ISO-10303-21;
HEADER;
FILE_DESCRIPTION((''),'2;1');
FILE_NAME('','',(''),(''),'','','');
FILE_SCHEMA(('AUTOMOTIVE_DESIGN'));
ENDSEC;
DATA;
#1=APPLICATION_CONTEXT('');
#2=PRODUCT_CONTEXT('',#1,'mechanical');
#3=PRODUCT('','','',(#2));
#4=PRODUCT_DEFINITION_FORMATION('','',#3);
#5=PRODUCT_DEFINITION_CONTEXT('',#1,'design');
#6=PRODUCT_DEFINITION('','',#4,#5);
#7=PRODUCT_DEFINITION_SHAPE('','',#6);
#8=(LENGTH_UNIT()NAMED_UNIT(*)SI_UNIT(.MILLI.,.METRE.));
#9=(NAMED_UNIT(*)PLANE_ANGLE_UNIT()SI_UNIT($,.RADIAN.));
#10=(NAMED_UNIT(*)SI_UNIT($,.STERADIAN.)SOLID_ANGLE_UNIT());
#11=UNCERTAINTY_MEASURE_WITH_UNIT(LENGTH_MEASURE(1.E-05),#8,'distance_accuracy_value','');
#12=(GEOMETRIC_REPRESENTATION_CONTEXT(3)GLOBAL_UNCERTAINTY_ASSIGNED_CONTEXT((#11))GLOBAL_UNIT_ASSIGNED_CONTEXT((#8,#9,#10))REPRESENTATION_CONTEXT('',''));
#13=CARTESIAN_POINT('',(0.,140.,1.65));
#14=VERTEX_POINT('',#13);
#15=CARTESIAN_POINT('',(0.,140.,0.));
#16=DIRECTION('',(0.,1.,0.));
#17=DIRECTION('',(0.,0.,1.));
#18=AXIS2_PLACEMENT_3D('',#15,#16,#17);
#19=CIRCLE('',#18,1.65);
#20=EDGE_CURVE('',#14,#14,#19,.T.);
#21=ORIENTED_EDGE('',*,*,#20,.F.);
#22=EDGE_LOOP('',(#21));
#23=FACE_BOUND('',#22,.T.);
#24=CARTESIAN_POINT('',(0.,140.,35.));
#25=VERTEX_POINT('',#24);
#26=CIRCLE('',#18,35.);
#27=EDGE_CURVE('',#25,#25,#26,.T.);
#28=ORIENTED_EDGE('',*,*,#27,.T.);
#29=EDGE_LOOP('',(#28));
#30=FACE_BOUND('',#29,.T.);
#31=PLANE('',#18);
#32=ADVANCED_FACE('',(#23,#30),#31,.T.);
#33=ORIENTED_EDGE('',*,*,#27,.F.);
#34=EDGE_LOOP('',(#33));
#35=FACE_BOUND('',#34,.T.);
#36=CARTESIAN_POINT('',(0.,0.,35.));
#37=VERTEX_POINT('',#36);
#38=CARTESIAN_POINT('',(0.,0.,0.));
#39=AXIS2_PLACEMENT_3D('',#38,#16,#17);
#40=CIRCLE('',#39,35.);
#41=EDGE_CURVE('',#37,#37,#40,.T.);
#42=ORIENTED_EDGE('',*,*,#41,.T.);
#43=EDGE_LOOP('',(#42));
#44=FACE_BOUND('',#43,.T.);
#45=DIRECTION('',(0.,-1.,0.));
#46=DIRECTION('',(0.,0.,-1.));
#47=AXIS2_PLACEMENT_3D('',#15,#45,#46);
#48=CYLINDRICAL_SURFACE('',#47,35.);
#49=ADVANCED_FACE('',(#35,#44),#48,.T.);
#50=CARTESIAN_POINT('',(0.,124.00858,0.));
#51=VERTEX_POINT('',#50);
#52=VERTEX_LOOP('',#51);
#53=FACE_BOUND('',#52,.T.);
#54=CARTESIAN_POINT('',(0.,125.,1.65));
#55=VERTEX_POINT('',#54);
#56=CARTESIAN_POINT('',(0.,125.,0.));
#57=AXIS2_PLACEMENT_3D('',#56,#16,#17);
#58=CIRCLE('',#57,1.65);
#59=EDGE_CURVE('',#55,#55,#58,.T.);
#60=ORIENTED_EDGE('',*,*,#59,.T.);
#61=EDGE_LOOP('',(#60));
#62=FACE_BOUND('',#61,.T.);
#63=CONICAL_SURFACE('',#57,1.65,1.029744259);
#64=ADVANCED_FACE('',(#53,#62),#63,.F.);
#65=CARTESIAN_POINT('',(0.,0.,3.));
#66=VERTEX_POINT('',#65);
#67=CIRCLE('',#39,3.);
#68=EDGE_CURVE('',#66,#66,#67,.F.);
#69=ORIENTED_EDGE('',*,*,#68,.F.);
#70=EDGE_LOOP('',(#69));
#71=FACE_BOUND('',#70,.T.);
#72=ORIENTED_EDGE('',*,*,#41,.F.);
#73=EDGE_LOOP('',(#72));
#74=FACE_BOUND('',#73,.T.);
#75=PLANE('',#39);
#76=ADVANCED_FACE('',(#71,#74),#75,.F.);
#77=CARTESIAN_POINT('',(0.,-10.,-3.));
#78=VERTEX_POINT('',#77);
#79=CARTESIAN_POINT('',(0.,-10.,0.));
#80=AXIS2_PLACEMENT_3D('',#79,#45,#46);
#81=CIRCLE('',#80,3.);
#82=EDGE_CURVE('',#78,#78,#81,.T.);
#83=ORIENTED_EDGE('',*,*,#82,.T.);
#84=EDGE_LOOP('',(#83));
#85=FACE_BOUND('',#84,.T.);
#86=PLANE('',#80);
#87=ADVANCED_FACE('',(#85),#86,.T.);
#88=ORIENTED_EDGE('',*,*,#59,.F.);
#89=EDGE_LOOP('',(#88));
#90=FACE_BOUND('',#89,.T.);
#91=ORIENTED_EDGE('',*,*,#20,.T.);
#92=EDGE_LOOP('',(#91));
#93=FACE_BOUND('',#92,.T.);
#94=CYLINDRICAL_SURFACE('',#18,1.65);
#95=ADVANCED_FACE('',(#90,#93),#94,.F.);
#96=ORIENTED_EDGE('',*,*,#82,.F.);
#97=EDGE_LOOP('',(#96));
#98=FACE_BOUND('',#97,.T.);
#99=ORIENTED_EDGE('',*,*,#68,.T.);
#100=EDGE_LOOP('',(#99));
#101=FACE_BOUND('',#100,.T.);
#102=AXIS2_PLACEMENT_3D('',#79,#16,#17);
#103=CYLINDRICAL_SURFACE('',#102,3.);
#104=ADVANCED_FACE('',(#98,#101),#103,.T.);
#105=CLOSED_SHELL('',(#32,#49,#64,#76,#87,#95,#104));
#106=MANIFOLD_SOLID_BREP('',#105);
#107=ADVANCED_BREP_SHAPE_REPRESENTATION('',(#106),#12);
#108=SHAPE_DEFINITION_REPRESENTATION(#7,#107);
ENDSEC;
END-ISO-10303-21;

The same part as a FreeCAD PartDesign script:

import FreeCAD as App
import Part
import Sketcher

V = App.Vector
Q = App.Units.Quantity

doc = App.newDocument("Part")
params = doc.addObject("Spreadsheet::Sheet", "Params")
for row, (alias, value) in enumerate([
    ("sketch1_diameter", "70 mm"),
    ("pad1_length", "140 mm"),
    ("sketch2_diameter", "6 mm"),
    ("pad2_length", "10 mm"),
    ("sketch3_diameter", "3.3 mm"),
    ("hole_diameter", "3.3 mm"),
    ("hole_depth", "15 mm"),
], start=1):
    params.set(f"A{row}", alias)
    params.set(f"B{row}", "=" + value)
    params.setAlias(f"B{row}", alias)

body = doc.addObject("PartDesign::Body", "Body")

# Sketch on XZ plane
sketch1 = doc.addObject("Sketcher::SketchObject", "Sketch")
body.addObject(sketch1)
sketch1.AttachmentSupport = (doc.XZ_Plane, [""])
sketch1.MapMode = "FlatFace"
sketch1.addGeometry(Part.Circle(V(0, 0, 0), V(0, 0, 1), 35), False)
sketch1.addConstraint(Sketcher.Constraint("Coincident", 0, 3, -1, 1))
sketch1.addConstraint(Sketcher.Constraint("Diameter", 0, Q("70 mm")))
sketch1.setExpression("Constraints[1]", "Params.sketch1_diameter")
pad1 = doc.addObject("PartDesign::Pad", "Pad")
body.addObject(pad1)
pad1.Profile = sketch1
pad1.setExpression("Length", "Params.pad1_length")
pad1.Reversed = True

# Sketch on XZ plane
sketch2 = doc.addObject("Sketcher::SketchObject", "Sketch001")
body.addObject(sketch2)
sketch2.AttachmentSupport = (doc.XZ_Plane, [""])
sketch2.MapMode = "FlatFace"
sketch2.addGeometry(Part.Circle(V(0, 0, 0), V(0, 0, 1), 3), False)
sketch2.addConstraint(Sketcher.Constraint("Coincident", 0, 3, -1, 1))
sketch2.addConstraint(Sketcher.Constraint("Diameter", 0, Q("6 mm")))
sketch2.setExpression("Constraints[1]", "Params.sketch2_diameter")
pad2 = doc.addObject("PartDesign::Pad", "Pad001")
body.addObject(pad2)
pad2.Profile = sketch2
pad2.setExpression("Length", "Params.pad2_length")

# Sketch on XZ plane
sketch3 = doc.addObject("Sketcher::SketchObject", "Sketch002")
body.addObject(sketch3)
sketch3.AttachmentSupport = (doc.XZ_Plane, [""])
sketch3.MapMode = "FlatFace"
sketch3.AttachmentOffset = App.Placement(V(0, 0, -140), App.Rotation())
sketch3.addGeometry(Part.Circle(V(0, 0, 0), V(0, 0, 1), 1.6), False)
sketch3.addConstraint(Sketcher.Constraint("Coincident", 0, 3, -1, 1))
sketch3.addConstraint(Sketcher.Constraint("Diameter", 0, Q("3.3 mm")))
sketch3.setExpression("Constraints[1]", "Params.sketch3_diameter")
doc.recompute()
hole = doc.addObject("PartDesign::Hole", "Hole")
body.addObject(hole)
hole.Profile = sketch3
hole.ThreadType = "None"
hole.setExpression("Diameter", "Params.hole_diameter")
hole.DepthType = "Dimension"
hole.setExpression("Depth", "Params.hole_depth")
hole.DrillPoint = "Angled"
hole.DrillPointAngle = 118
hole.Reversed = True

doc.recompute()
